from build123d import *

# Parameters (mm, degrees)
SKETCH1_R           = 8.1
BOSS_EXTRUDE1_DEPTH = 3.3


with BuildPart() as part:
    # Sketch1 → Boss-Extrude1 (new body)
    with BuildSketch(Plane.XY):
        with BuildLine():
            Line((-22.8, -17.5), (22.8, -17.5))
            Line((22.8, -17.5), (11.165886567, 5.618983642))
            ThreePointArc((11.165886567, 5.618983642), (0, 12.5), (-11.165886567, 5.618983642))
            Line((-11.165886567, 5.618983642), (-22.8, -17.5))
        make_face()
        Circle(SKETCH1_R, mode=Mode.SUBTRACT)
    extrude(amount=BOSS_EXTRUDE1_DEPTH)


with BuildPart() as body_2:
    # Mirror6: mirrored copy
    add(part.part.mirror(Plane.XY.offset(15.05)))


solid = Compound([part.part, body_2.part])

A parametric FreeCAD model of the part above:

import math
import FreeCAD as App
import Part
import Sketcher

V = App.Vector
Q = App.Units.Quantity

doc = App.newDocument("Part")
body = doc.addObject("PartDesign::Body", "Body")

sketch1 = doc.addObject("Sketcher::SketchObject", "Sketch")
body.addObject(sketch1)
sketch1.AttachmentSupport = (doc.XY_Plane, [""])
sketch1.MapMode = "FlatFace"
sketch1.addGeometry([
    Part.LineSegment(V(-23, -18, 0), V(23, -18, 0)),
    Part.LineSegment(V(23, -18, 0), V(11, 6, 0)),
    Part.ArcOfCircle(Part.Circle(V(0, 0, 0), V(0, 0, 1), 12), math.radians(27), math.radians(153)),
    Part.LineSegment(V(-11, 6, 0), V(-23, -18, 0)),
    Part.Circle(V(0, 0, 0), V(0, 0, 1), 8),
], False)
sketch1.addConstraint([
    Sketcher.Constraint("Coincident", 0, 2, 1, 1),
    Sketcher.Constraint("Tangent", 1, 2, 2, 1),
    Sketcher.Constraint("Tangent", 2, 2, 3, 1),
    Sketcher.Constraint("Coincident", 3, 2, 0, 1),
    Sketcher.Constraint("Horizontal", 0),
    Sketcher.Constraint("Coincident", 2, 3, -1, 1),
    Sketcher.Constraint("Coincident", 4, 3, -1, 1),
    Sketcher.Constraint("Horizontal", 1, 2, 2, 2),
    Sketcher.Constraint("Diameter", 4, Q("16.2 mm")),
    Sketcher.Constraint("Radius", 2, Q("12.5 mm")),
    Sketcher.Constraint("DistanceX", 0, 1, 0, 2, Q("45.6 mm")),
    Sketcher.Constraint("DistanceY", 0, 2, -1, 1, Q("17.5 mm")),
])
pad1 = doc.addObject("PartDesign::Pad", "Pad")
body.addObject(pad1)
pad1.Profile = sketch1
pad1.Length = 3.3
body2 = doc.addObject("PartDesign::Body", "Body001")
doc.recompute()

mirroring = doc.addObject("Part::Mirroring", "Mirroring")
mirroring.Source = body
mirroring.Base = V(0, 0, 15.05)
mirroring.Normal = V(0, 0, 1)
body2.BaseFeature = mirroring
doc.recompute()
mirroring.Visibility = False

doc.recompute()
